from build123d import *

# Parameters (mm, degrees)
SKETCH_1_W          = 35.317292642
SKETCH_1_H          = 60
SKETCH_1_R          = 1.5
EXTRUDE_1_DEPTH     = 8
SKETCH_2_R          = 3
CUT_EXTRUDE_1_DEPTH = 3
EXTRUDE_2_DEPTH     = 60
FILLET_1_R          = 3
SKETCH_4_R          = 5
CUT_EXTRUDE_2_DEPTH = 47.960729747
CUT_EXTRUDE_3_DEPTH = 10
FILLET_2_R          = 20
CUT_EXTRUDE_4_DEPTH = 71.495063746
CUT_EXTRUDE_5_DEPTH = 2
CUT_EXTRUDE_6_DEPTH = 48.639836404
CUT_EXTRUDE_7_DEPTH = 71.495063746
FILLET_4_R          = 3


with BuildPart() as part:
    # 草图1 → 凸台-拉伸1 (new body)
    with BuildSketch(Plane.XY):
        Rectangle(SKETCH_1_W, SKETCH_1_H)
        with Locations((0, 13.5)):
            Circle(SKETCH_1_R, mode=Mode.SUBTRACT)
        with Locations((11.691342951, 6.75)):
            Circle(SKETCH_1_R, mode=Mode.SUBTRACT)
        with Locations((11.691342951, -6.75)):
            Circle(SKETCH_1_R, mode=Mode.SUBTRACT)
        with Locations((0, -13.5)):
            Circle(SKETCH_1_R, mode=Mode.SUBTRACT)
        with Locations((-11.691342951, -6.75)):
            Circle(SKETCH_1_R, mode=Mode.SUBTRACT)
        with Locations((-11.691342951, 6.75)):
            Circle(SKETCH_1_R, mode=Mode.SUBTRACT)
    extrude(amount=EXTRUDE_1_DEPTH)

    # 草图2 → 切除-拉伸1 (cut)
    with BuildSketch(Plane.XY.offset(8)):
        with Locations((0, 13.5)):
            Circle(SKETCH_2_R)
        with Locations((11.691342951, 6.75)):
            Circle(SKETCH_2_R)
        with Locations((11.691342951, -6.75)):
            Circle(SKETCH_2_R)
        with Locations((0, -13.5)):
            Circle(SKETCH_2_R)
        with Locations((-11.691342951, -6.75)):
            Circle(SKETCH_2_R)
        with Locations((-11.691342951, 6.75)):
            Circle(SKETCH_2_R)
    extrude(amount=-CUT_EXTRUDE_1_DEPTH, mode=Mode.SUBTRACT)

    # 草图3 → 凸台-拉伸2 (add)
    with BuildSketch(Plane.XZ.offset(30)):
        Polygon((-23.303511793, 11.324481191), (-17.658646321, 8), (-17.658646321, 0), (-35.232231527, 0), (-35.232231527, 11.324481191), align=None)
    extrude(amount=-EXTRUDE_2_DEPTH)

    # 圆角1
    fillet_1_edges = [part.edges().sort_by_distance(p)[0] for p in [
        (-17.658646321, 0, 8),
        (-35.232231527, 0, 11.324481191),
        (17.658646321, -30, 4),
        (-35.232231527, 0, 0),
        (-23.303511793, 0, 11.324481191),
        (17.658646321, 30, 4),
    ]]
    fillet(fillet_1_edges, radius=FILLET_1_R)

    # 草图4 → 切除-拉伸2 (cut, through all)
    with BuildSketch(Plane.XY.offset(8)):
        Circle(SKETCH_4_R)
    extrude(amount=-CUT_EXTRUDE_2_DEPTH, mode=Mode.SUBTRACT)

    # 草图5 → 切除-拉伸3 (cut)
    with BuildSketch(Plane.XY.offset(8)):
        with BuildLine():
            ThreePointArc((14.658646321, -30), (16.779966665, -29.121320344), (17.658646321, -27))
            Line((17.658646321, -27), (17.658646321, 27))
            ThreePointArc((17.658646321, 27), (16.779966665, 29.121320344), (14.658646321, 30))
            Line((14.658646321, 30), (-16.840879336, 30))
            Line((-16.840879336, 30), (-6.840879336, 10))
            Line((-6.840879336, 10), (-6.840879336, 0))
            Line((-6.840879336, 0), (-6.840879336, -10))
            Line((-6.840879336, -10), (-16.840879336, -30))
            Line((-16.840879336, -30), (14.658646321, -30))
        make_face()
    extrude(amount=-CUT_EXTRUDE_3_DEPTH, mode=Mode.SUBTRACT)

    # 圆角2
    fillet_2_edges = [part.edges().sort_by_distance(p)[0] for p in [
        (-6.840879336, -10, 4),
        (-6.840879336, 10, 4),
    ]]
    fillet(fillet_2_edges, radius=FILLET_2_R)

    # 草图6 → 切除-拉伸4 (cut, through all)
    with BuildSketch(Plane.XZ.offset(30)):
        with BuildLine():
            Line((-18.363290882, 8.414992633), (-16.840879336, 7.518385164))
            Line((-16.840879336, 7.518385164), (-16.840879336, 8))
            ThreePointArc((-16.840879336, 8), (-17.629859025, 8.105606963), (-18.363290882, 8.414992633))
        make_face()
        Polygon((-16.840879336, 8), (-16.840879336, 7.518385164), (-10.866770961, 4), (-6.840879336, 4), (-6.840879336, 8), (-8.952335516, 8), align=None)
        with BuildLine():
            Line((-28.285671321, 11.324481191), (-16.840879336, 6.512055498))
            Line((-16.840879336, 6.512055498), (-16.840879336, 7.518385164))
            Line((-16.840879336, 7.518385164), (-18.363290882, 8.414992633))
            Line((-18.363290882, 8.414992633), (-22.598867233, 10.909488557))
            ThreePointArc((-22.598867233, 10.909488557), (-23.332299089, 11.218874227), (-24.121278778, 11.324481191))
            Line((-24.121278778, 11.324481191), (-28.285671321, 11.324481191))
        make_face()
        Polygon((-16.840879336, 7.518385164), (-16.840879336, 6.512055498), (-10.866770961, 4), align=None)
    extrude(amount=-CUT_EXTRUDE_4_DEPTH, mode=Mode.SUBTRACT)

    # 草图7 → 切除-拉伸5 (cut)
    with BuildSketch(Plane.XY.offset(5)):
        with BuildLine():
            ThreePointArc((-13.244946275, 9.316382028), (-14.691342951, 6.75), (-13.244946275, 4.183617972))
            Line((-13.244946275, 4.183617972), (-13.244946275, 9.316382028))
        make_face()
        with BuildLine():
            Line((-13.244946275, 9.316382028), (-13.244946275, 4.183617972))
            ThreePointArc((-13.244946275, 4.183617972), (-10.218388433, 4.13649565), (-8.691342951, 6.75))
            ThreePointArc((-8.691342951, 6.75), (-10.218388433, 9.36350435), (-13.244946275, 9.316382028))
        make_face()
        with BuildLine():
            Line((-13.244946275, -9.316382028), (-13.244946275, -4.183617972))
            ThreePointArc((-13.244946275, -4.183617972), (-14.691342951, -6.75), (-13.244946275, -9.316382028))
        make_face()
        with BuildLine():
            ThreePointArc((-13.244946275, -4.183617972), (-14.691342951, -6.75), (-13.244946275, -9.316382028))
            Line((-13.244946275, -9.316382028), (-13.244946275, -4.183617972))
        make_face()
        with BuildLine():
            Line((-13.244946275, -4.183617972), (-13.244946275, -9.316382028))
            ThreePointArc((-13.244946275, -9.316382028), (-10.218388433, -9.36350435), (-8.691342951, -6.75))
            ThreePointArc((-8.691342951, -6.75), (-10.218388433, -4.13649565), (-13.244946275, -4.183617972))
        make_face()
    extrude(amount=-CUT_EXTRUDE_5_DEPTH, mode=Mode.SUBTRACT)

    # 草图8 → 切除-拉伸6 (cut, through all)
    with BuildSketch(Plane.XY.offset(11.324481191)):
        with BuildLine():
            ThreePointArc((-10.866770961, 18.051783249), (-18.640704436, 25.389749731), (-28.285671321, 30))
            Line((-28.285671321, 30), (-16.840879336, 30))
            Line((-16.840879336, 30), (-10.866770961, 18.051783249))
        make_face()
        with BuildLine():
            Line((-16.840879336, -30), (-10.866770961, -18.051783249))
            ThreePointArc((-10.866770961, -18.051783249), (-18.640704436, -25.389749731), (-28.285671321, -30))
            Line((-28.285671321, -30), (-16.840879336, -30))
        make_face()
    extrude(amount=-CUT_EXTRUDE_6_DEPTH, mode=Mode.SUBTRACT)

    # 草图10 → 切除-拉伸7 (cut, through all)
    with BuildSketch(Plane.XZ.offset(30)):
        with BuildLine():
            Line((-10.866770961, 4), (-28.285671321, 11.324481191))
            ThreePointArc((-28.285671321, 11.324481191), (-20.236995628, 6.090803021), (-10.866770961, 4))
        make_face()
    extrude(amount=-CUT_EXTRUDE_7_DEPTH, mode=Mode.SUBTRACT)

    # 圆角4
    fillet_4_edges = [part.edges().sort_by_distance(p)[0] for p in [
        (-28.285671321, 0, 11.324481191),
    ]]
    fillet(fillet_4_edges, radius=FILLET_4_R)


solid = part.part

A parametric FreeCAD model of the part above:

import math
import FreeCAD as App
import Part
import Sketcher


def edges_at(feature, points):
    """Names of the edges that pass closest to the given points."""
    edges = feature.Shape.Edges
    near = lambda p: min(range(len(edges)), key=lambda i: edges[i].distToShape(Part.Vertex(*p))[0])
    return sorted({f"Edge{near(p) + 1}" for p in points})


def add_polygon(sketch, points):
    """Adds a closed chain of lines whose ends are joined by coincident constraints."""
    first, n = sketch.GeometryCount, len(points)
    for a, b in zip(points, points[1:] + points[:1]):
        sketch.addGeometry(Part.LineSegment(App.Vector(*a, 0), App.Vector(*b, 0)), False)
    for i in range(n):
        sketch.addConstraint(Sketcher.Constraint("Coincident", first + i, 2, first + (i + 1) % n, 1))

doc = App.newDocument("Part")
body = doc.addObject("PartDesign::Body", "Body")

sketch1 = body.newObject("Sketcher::SketchObject", "Sketch")
sketch1.AttachmentSupport = (doc.getObject("XY_Plane"), [""])
sketch1.MapMode = "FlatFace"
add_polygon(sketch1, [(-17.658646, 30), (-17.658646, -30), (17.658646, -30), (17.658646, 30)])
sketch1.addGeometry(Part.Circle(App.Vector(-11.691343, -6.75, 0), App.Vector(0, 0, 1), 1.5), False)
sketch1.addGeometry(Part.Circle(App.Vector(0, -13.5, 0), App.Vector(0, 0, 1), 1.5), False)
sketch1.addGeometry(Part.Circle(App.Vector(11.691343, -6.75, 0), App.Vector(0, 0, 1), 1.5), False)
sketch1.addGeometry(Part.Circle(App.Vector(-11.691343, 6.75, 0), App.Vector(0, 0, 1), 1.5), False)
sketch1.addGeometry(Part.Circle(App.Vector(11.691343, 6.75, 0), App.Vector(0, 0, 1), 1.5), False)
sketch1.addGeometry(Part.Circle(App.Vector(0, 13.5, 0), App.Vector(0, 0, 1), 1.5), False)
sketch1.addConstraint([
    Sketcher.Constraint("Vertical", 0),
    Sketcher.Constraint("Horizontal", 1),
    Sketcher.Constraint("Vertical", 2),
    Sketcher.Constraint("Horizontal", 3),
    Sketcher.Constraint("Equal", 4, 5),
    Sketcher.Constraint("Equal", 5, 6),
    Sketcher.Constraint("Equal", 6, 7),
    Sketcher.Constraint("Equal", 7, 8),
    Sketcher.Constraint("Equal", 8, 9),
    Sketcher.Constraint("Symmetric", 6, 3, 7, 3, -1, 1),
    Sketcher.Constraint("Symmetric", 4, 3, 8, 3, -1, 1),
    Sketcher.Constraint("Symmetric", 5, 3, 9, 3, -1, 1),
    Sketcher.Constraint("Symmetric", 0, 2, 2, 2, -1, 1),
    Sketcher.Constraint("Symmetric", 4, 3, 6, 3, -2),
    Sketcher.Constraint("PointOnObject", 5, 3, -2),
    Sketcher.Constraint("Diameter", 4, 3.0),
    Sketcher.Constraint("DistanceY", 0, 2, 0, 1, 60.0),
    Sketcher.Constraint("DistanceY", 5, 3, 9, 3, 27.0),
    Sketcher.Constraint("DistanceY", 4, 3, 7, 3, 13.5),
    Sketcher.Constraint("DistanceX", 1, 1, 1, 2, 35.317293),
    Sketcher.Constraint("DistanceX", 0, 2, 6, 3, 29.349989),
])
pad1 = body.newObject("PartDesign::Pad", "Pad")
pad1.Profile = sketch1
pad1.Length = 8

sketch2 = body.newObject("Sketcher::SketchObject", "Sketch001")
sketch2.AttachmentSupport = (doc.getObject("XY_Plane"), [""])
sketch2.MapMode = "FlatFace"
sketch2.AttachmentOffset = App.Placement(App.Vector(0, 0, 8), App.Rotation())
sketch2.addGeometry([
    Part.Circle(App.Vector(0, 13.5, 0), App.Vector(0, 0, 1), 3),
    Part.Circle(App.Vector(11.691343, 6.75, 0), App.Vector(0, 0, 1), 3),
    Part.Circle(App.Vector(11.691343, -6.75, 0), App.Vector(0, 0, 1), 3),
    Part.Circle(App.Vector(0, -13.5, 0), App.Vector(0, 0, 1), 3),
    Part.Circle(App.Vector(-11.691343, -6.75, 0), App.Vector(0, 0, 1), 3),
    Part.Circle(App.Vector(-11.691343, 6.75, 0), App.Vector(0, 0, 1), 3),
], False)
sketch2.addConstraint([
    Sketcher.Constraint("Equal", 0, 1),
    Sketcher.Constraint("Equal", 1, 2),
    Sketcher.Constraint("Equal", 2, 3),
    Sketcher.Constraint("Equal", 3, 4),
    Sketcher.Constraint("Equal", 4, 5),
    Sketcher.Constraint("Symmetric", 0, 3, 3, 3, -1, 1),
    Sketcher.Constraint("Symmetric", 1, 3, 4, 3, -1, 1),
    Sketcher.Constraint("Symmetric", 2, 3, 5, 3, -1, 1),
    Sketcher.Constraint("Symmetric", 2, 3, 4, 3, -2),
    Sketcher.Constraint("PointOnObject", 0, 3, -2),
    Sketcher.Constraint("Diameter", 0, 6.0),
    Sketcher.Constraint("DistanceY", 3, 3, 0, 3, 27.0),
    Sketcher.Constraint("DistanceY", 2, 3, 1, 3, 13.5),
    Sketcher.Constraint("DistanceX", -1, 1, 1, 3, 11.691343),
])
pocket1 = body.newObject("PartDesign::Pocket", "Pocket")
pocket1.Profile = sketch2
pocket1.Length = 3

sketch3 = body.newObject("Sketcher::SketchObject", "Sketch002")
sketch3.AttachmentSupport = (doc.getObject("XZ_Plane"), [""])
sketch3.MapMode = "FlatFace"
sketch3.AttachmentOffset = App.Placement(App.Vector(0, 0, 30), App.Rotation())
add_polygon(sketch3, [(-17.658646, 8), (-23.303512, 11.324481), (-35.232232, 11.324481), (-35.232232, 0), (-17.658646, 0)])
sketch3.addConstraint([
    Sketcher.Constraint("Horizontal", 1),
    Sketcher.Constraint("Vertical", 2),
    Sketcher.Constraint("Horizontal", 3),
    Sketcher.Constraint("Vertical", 4),
    Sketcher.Constraint("PointOnObject", 2, 2, -1),
    Sketcher.Constraint("DistanceY", 4, 1, 4, 2, 8.0),
    Sketcher.Constraint("DistanceX", 1, 2, 1, 1, 11.92872),
    Sketcher.Constraint("DistanceY", 2, 2, 2, 1, 11.324481),
    Sketcher.Constraint("DistanceX", 3, 1, 3, 2, 17.573585),
    Sketcher.Constraint("DistanceX", 0, 2, -1, 1, 23.303512),
])
pad2 = body.newObject("PartDesign::Pad", "Pad001")
pad2.Profile = sketch3
pad2.Length = 60
pad2.Reversed = True
doc.recompute()

fillet = body.newObject("PartDesign::Fillet", "Fillet")
fillet.Base = (pad2, edges_at(pad2, [
    (-17.659, 0, 8),
    (-35.232, 0, 11.324),
    (17.659, -30, 4),
    (-35.232, 0, 0),
    (-23.304, 0, 11.324),
    (17.659, 30, 4),
]))
fillet.Radius = 3

sketch4 = body.newObject("Sketcher::SketchObject", "Sketch003")
sketch4.AttachmentSupport = (doc.getObject("XY_Plane"), [""])
sketch4.MapMode = "FlatFace"
sketch4.AttachmentOffset = App.Placement(App.Vector(0, 0, 8), App.Rotation())
sketch4.addGeometry(Part.Circle(App.Vector(0, 0, 0), App.Vector(0, 0, 1), 5), False)
sketch4.addConstraint([
    Sketcher.Constraint("Coincident", 0, 3, -1, 1),
    Sketcher.Constraint("Diameter", 0, 10.0),
])
pocket2 = body.newObject("PartDesign::Pocket", "Pocket001")
pocket2.Profile = sketch4
pocket2.Type = "ThroughAll"

sketch5 = body.newObject("Sketcher::SketchObject", "Sketch004")
sketch5.AttachmentSupport = (doc.getObject("XY_Plane"), [""])
sketch5.MapMode = "FlatFace"
sketch5.AttachmentOffset = App.Placement(App.Vector(0, 0, 8), App.Rotation())
sketch5.addGeometry([
    Part.ArcOfCircle(Part.Circle(App.Vector(14.658646, -27, 0), App.Vector(0, 0, 1), 3), math.radians(-90), math.radians(0)),
    Part.LineSegment(App.Vector(17.658646, -27, 0), App.Vector(17.658646, 27, 0)),
    Part.ArcOfCircle(Part.Circle(App.Vector(14.658646, 27, 0), App.Vector(0, 0, 1), 3), math.radians(0), math.radians(90)),
    Part.LineSegment(App.Vector(14.658646, 30, 0), App.Vector(-16.840879, 30, 0)),
    Part.LineSegment(App.Vector(-16.840879, 30, 0), App.Vector(-6.840879, 10, 0)),
    Part.LineSegment(App.Vector(-6.840879, 10, 0), App.Vector(-6.840879, -10, 0)),
    Part.LineSegment(App.Vector(-6.840879, -10, 0), App.Vector(-16.840879, -30, 0)),
    Part.LineSegment(App.Vector(-16.840879, -30, 0), App.Vector(14.658646, -30, 0)),
], False)
sketch5.addConstraint([
    Sketcher.Constraint("Tangent", 0, 2, 1, 1),
    Sketcher.Constraint("Tangent", 1, 2, 2, 1),
    Sketcher.Constraint("Tangent", 2, 2, 3, 1),
    Sketcher.Constraint("Coincident", 3, 2, 4, 1),
    Sketcher.Constraint("Coincident", 4, 2, 5, 1),
    Sketcher.Constraint("Coincident", 5, 2, 6, 1),
    Sketcher.Constraint("Coincident", 6, 2, 7, 1),
    Sketcher.Constraint("Tangent", 7, 2, 0, 1),
    Sketcher.Constraint("Vertical", 1),
    Sketcher.Constraint("Horizontal", 3),
    Sketcher.Constraint("Vertical", 5),
    Sketcher.Constraint("Horizontal", 7),
    Sketcher.Constraint("Equal", 0, 2),
    Sketcher.Constraint("Symmetric", 3, 2, 6, 2, -1),
    Sketcher.Constraint("Equal", 4, 6),
    Sketcher.Constraint("Radius", 0, 3.0),
    Sketcher.Constraint("DistanceY", 1, 1, 1, 2, 54.0),
    Sketcher.Constraint("DistanceY", 5, 2, 5, 1, 20.0),
    Sketcher.Constraint("DistanceX", 3, 2, 4, 2, 10.0),
    Sketcher.Constraint("DistanceX", 3, 2, 3, 1, 31.499526),
    Sketcher.Constraint("DistanceX", 3, 2, -1, 1, 16.840879),
])
pocket3 = body.newObject("PartDesign::Pocket", "Pocket002")
pocket3.Profile = sketch5
pocket3.Length = 10
doc.recompute()

fillet2 = body.newObject("PartDesign::Fillet", "Fillet001")
fillet2.Base = (pocket3, edges_at(pocket3, [(-6.841, -10, 4), (-6.841, 10, 4)]))
fillet2.Radius = 20

sketch6 = body.newObject("Sketcher::SketchObject", "Sketch005")
sketch6.AttachmentSupport = (doc.getObject("XZ_Plane"), [""])
sketch6.MapMode = "FlatFace"
sketch6.AttachmentOffset = App.Placement(App.Vector(0, 0, 30), App.Rotation())
sketch6.addGeometry([
    Part.LineSegment(App.Vector(-10.866771, 4, 0), App.Vector(-6.840879, 4, 0)),
    Part.LineSegment(App.Vector(-6.840879, 4, 0), App.Vector(-6.840879, 8, 0)),
    Part.LineSegment(App.Vector(-6.840879, 8, 0), App.Vector(-16.840879, 8, 0)),
    Part.ArcOfCircle(Part.Circle(App.Vector(-16.840879, 11, 0), App.Vector(0, 0, 1), 3), math.radians(-120.495488), math.radians(-90)),
    Part.LineSegment(App.Vector(-18.363291, 8.414993, 0), App.Vector(-22.598867, 10.909489, 0)),
    Part.ArcOfCircle(Part.Circle(App.Vector(-24.121279, 8.324481, 0), App.Vector(0, 0, 1), 3), math.radians(59.504512), math.radians(90)),
    Part.LineSegment(App.Vector(-24.121279, 11.324481, 0), App.Vector(-28.285671, 11.324481, 0)),
    Part.LineSegment(App.Vector(-28.285671, 11.324481, 0), App.Vector(-16.840879, 6.512055, 0)),
    Part.LineSegment(App.Vector(-16.840879, 6.512055, 0), App.Vector(-10.866771, 4, 0)),
], False)
sketch6.addConstraint([
    Sketcher.Constraint("Coincident", 0, 2, 1, 1),
    Sketcher.Constraint("Coincident", 1, 2, 2, 1),
    Sketcher.Constraint("Tangent", 2, 2, 3, 2),
    Sketcher.Constraint("Tangent", 3, 1, 4, 1),
    Sketcher.Constraint("Tangent", 4, 2, 5, 1),
    Sketcher.Constraint("Tangent", 5, 2, 6, 1),
    Sketcher.Constraint("Coincident", 6, 2, 7, 1),
    Sketcher.Constraint("Coincident", 7, 2, 8, 1),
    Sketcher.Constraint("Coincident", 8, 2, 0, 1),
    Sketcher.Constraint("Horizontal", 0),
    Sketcher.Constraint("Vertical", 1),
    Sketcher.Constraint("Horizontal", 2),
    Sketcher.Constraint("Horizontal", 6),
    Sketcher.Constraint("Equal", 3, 5),
    Sketcher.Constraint("Parallel", 7, 8),
    Sketcher.Constraint("Vertical", 2, 2, 7, 2),
    Sketcher.Constraint("Radius", 3, 3.0),
    Sketcher.Constraint("DistanceX", 2, 2, 2, 1, 10.0),
    Sketcher.Constraint("DistanceY", 1, 1, 1, 2, 4.0),
    Sketcher.Constraint("DistanceY", -1, 1, 3, 3, 11.0),
    Sketcher.Constraint("DistanceX", 0, 1, 0, 2, 4.025892),
    Sketcher.Constraint("DistanceX", 5, 3, 3, 3, 7.280399),
    Sketcher.Constraint("Distance", 4, 4.915548),
    Sketcher.Constraint("Distance", 8, 6.480771),
    Sketcher.Constraint("DistanceX", 3, 3, -1, 1, 16.840879),
])
pocket4 = body.newObject("PartDesign::Pocket", "Pocket003")
pocket4.Profile = sketch6
pocket4.Type = "ThroughAll"

sketch7 = body.newObject("Sketcher::SketchObject", "Sketch006")
sketch7.AttachmentSupport = (doc.getObject("XY_Plane"), [""])
sketch7.MapMode = "FlatFace"
sketch7.AttachmentOffset = App.Placement(App.Vector(0, 0, 5), App.Rotation())
sketch7.addGeometry([
    Part.ArcOfCircle(Part.Circle(App.Vector(-11.691343, 6.75, 0), App.Vector(0, 0, 1), 3), math.radians(121.189334), math.radians(238.810666)),
    Part.ArcOfCircle(Part.Circle(App.Vector(-11.691343, 6.75, 0), App.Vector(0, 0, 1), 3), math.radians(-121.189334), math.radians(0)),
    Part.ArcOfCircle(Part.Circle(App.Vector(-11.691343, 6.75, 0), App.Vector(0, 0, 1), 3), math.radians(0), math.radians(121.189334)),
    Part.ArcOfCircle(Part.Circle(App.Vector(-11.691343, -6.75, 0), App.Vector(0, 0, 1), 3), math.radians(121.189334), math.radians(238.810666)),
    Part.ArcOfCircle(Part.Circle(App.Vector(-11.691343, -6.75, 0), App.Vector(0, 0, 1), 3), math.radians(-121.189334), math.radians(0)),
    Part.ArcOfCircle(Part.Circle(App.Vector(-11.691343, -6.75, 0), App.Vector(0, 0, 1), 3), math.radians(0), math.radians(121.189334)),
], False)
sketch7.addConstraint([
    Sketcher.Constraint("Tangent", 0, 2, 1, 1),
    Sketcher.Constraint("Tangent", 1, 2, 2, 1),
    Sketcher.Constraint("Tangent", 2, 2, 0, 1),
    Sketcher.Constraint("Tangent", 3, 2, 4, 1),
    Sketcher.Constraint("Tangent", 4, 2, 5, 1),
    Sketcher.Constraint("Tangent", 5, 2, 3, 1),
    Sketcher.Constraint("Equal", 2, 3),
    Sketcher.Constraint("Symmetric", 0, 3, 3, 3, -1),
    Sketcher.Constraint("Horizontal", 2, 3, 1, 2),
    Sketcher.Constraint("Horizontal", 5, 3, 4, 2),
    Sketcher.Constraint("Vertical", 0, 2, 2, 2),
    Sketcher.Constraint("Vertical", 2, 2, 3, 2),
    Sketcher.Constraint("Vertical", 3, 2, 5, 2),
    Sketcher.Constraint("Radius", 0, 3.0),
    Sketcher.Constraint("DistanceY", 3, 3, 0, 3, 13.5),
    Sketcher.Constraint("DistanceX", 0, 3, -1, 1, 11.691343),
    Sketcher.Constraint("DistanceX", 0, 2, -1, 1, 13.244946),
])
pocket5 = body.newObject("PartDesign::Pocket", "Pocket004")
pocket5.Profile = sketch7
pocket5.Length = 2

sketch8 = body.newObject("Sketcher::SketchObject", "Sketch007")
sketch8.AttachmentSupport = (doc.getObject("XY_Plane"), [""])
sketch8.MapMode = "FlatFace"
sketch8.AttachmentOffset = App.Placement(App.Vector(0, 0, 11.324481), App.Rotation())
sketch8.addGeometry([
    Part.ArcOfCircle(Part.Circle(App.Vector(-38.183467, -3.100982, 0), App.Vector(0, 0, 1), 34.549116), math.radians(37.752517), math.radians(73.352378)),
    Part.LineSegment(App.Vector(-10.866771, 18.051783, 0), App.Vector(-16.840879, 30, 0)),
    Part.LineSegment(App.Vector(-16.840879, 30, 0), App.Vector(-28.285671, 30, 0)),
    Part.LineSegment(App.Vector(-16.840879, -30, 0), App.Vector(-10.866771, -18.051783, 0)),
    Part.ArcOfCircle(Part.Circle(App.Vector(-38.183467, 3.100982, 0), App.Vector(0, 0, 1), 34.549116), math.radians(-73.352378), math.radians(-37.752517)),
    Part.LineSegment(App.Vector(-28.285671, -30, 0), App.Vector(-16.840879, -30, 0)),
], False)
sketch8.addConstraint([
    Sketcher.Constraint("Coincident", 0, 1, 1, 1),
    Sketcher.Constraint("Coincident", 1, 2, 2, 1),
    Sketcher.Constraint("Coincident", 2, 2, 0, 2),
    Sketcher.Constraint("Coincident", 3, 2, 4, 2),
    Sketcher.Constraint("Coincident", 4, 1, 5, 1),
    Sketcher.Constraint("Coincident", 5, 2, 3, 1),
    Sketcher.Constraint("Horizontal", 2),
    Sketcher.Constraint("Horizontal", 5),
    Sketcher.Constraint("Equal", 0, 4),
    Sketcher.Constraint("Symmetric", 0, 3, 4, 3, -1),
    Sketcher.Constraint("Symmetric", 1, 2, 5, 2, -1),
    Sketcher.Constraint("Vertical", 0, 1, 3, 2),
    Sketcher.Constraint("DistanceY", -1, 1, 1, 2, 30.0),
    Sketcher.Constraint("Radius", 0, 34.549116),
    Sketcher.Constraint("DistanceX", 2, 2, 2, 1, 11.444792),
    Sketcher.Constraint("DistanceY", 4, 3, 0, 1, 14.950801),
    Sketcher.Constraint("DistanceX", 2, 2, 0, 1, 17.4189),
    Sketcher.Constraint("DistanceX", 0, 1, -1, 1, 10.866771),
])
pocket6 = body.newObject("PartDesign::Pocket", "Pocket005")
pocket6.Profile = sketch8
pocket6.Type = "ThroughAll"

sketch9 = body.newObject("Sketcher::SketchObject", "Sketch008")
sketch9.AttachmentSupport = (doc.getObject("XZ_Plane"), [""])
sketch9.MapMode = "FlatFace"
sketch9.AttachmentOffset = App.Placement(App.Vector(0, 0, 30), App.Rotation())
sketch9.addGeometry([
    Part.LineSegment(App.Vector(-10.866771, 4, 0), App.Vector(-28.285671, 11.324481, 0)),
    Part.ArcOfCircle(Part.Circle(App.Vector(-9.757907, 31.011913, 0), App.Vector(0, 0, 1), 27.034664), math.radians(-133.261852), math.radians(-92.350725)),
], False)
sketch9.addConstraint([
    Sketcher.Constraint("Coincident", 0, 1, 1, 2),
    Sketcher.Constraint("Coincident", 1, 1, 0, 2),
    Sketcher.Constraint("DistanceY", -1, 1, 0, 1, 4.0),
    Sketcher.Constraint("Radius", 1, 27.034664),
    Sketcher.Constraint("DistanceX", 1, 1, 0, 1, 17.4189),
    Sketcher.Constraint("DistanceX", 0, 1, -1, 1, 10.866771),
    Sketcher.Constraint("DistanceY", -1, 1, 1, 1, 11.324481),
])
pocket7 = body.newObject("PartDesign::Pocket", "Pocket006")
pocket7.Profile = sketch9
pocket7.Type = "ThroughAll"
doc.recompute()

fillet3 = body.newObject("PartDesign::Fillet", "Fillet002")
fillet3.Base = (pocket7, edges_at(pocket7, [(-28.286, 0, 11.324)]))
fillet3.Radius = 3

doc.recompute()
